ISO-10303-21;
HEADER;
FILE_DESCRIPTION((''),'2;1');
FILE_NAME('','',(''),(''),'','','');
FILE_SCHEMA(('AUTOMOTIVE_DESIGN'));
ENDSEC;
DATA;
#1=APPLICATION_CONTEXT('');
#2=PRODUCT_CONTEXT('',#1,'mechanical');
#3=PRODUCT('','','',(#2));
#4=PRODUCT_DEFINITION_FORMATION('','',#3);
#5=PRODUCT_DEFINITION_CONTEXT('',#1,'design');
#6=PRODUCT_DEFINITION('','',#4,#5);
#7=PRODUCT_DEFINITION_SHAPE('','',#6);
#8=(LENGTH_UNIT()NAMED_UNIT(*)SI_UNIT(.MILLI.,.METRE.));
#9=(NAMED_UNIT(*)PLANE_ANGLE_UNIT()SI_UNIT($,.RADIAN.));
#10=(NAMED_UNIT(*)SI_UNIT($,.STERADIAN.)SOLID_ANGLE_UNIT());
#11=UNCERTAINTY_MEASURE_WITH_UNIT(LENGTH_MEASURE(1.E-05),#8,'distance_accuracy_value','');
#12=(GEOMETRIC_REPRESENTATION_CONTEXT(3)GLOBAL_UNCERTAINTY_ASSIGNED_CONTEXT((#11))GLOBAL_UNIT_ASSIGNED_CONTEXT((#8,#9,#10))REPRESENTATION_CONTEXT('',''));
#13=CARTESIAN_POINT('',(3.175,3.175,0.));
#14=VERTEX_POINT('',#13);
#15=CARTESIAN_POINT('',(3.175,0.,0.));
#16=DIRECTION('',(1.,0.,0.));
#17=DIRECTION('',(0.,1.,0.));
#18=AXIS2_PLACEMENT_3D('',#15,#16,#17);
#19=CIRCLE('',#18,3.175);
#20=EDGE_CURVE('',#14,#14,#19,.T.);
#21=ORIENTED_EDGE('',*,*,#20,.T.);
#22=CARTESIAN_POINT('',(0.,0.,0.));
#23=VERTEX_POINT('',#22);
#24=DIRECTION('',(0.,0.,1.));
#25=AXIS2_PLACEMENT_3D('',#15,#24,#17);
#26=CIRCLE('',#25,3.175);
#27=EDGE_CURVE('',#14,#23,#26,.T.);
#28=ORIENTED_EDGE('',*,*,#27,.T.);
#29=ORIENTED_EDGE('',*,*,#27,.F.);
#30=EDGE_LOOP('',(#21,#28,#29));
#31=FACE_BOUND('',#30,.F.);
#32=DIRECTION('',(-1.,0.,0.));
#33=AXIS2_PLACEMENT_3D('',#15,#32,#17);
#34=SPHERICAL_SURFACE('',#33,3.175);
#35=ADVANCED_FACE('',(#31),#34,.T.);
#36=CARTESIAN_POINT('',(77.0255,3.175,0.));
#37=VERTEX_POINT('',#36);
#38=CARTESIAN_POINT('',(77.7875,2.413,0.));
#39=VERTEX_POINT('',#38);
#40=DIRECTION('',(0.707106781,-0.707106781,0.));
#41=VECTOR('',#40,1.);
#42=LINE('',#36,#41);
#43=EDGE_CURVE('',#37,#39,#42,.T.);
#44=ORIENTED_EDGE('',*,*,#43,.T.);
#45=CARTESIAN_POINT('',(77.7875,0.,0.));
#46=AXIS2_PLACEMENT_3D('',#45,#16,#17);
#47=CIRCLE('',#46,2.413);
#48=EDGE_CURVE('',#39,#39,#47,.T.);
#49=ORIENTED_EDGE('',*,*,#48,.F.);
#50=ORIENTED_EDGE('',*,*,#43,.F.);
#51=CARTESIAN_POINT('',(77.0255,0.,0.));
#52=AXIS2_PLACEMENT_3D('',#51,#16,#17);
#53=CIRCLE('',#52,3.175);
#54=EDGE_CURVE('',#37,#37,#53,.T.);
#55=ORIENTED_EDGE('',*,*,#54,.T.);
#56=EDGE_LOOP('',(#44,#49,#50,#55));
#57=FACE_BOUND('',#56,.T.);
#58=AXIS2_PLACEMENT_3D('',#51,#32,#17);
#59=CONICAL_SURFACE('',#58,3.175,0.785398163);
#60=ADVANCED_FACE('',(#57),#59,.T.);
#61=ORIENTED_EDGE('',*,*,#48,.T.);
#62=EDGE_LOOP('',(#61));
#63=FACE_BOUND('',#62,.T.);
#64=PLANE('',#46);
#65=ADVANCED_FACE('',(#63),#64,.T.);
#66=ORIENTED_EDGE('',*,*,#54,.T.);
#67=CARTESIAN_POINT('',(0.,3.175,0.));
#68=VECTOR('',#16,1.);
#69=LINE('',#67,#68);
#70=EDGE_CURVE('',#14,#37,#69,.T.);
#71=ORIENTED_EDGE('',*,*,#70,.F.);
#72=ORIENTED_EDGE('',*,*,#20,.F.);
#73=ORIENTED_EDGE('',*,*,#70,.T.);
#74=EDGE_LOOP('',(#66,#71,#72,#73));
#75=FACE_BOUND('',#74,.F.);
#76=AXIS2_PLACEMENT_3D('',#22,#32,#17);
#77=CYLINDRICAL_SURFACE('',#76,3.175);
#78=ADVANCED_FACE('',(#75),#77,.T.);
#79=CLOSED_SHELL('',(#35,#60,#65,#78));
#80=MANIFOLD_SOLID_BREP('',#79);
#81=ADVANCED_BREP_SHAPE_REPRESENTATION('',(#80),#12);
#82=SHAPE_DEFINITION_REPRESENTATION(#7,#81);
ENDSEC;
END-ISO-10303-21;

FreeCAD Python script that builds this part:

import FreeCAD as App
import Part
import Sketcher

V = App.Vector
Q = App.Units.Quantity


def edges_at(feature, points):
    """Names of the edges that pass closest to the given points."""
    edges = feature.Shape.Edges
    near = lambda p: min(range(len(edges)), key=lambda i: edges[i].distToShape(Part.Vertex(*p))[0])
    return sorted({f"Edge{near(p) + 1}" for p in points})

doc = App.newDocument("Part")
body = doc.addObject("PartDesign::Body", "Body")

# Sketch on YZ plane
sketch1 = body.newObject("Sketcher::SketchObject", "Sketch")
sketch1.AttachmentSupport = (doc.getObject("YZ_Plane"), [""])
sketch1.MapMode = "FlatFace"
sketch1.addGeometry(Part.Circle(V(0, 0, 0), V(0, 0, 1), 3.2), False)
sketch1.addConstraint(Sketcher.Constraint("Coincident", 0, 3, -1, 1))
sketch1.addConstraint(Sketcher.Constraint("Diameter", 0, Q("0.25 in")))
pad1 = body.newObject("PartDesign::Pad", "Pad")
pad1.Profile = sketch1
pad1.Length = Q("3.0625 in")
doc.recompute()

fillet = body.newObject("PartDesign::Fillet", "Fillet")
fillet.Base = (pad1, edges_at(pad1, [(0, -3.175, 0)]))
fillet.Radius = Q("0.125 in")
doc.recompute()

chamfer = body.newObject("PartDesign::Chamfer", "Chamfer")
chamfer.Base = (fillet, edges_at(fillet, [(77.787, -3.175, 0)]))
chamfer.Size = Q("0.03 in")

doc.recompute()
